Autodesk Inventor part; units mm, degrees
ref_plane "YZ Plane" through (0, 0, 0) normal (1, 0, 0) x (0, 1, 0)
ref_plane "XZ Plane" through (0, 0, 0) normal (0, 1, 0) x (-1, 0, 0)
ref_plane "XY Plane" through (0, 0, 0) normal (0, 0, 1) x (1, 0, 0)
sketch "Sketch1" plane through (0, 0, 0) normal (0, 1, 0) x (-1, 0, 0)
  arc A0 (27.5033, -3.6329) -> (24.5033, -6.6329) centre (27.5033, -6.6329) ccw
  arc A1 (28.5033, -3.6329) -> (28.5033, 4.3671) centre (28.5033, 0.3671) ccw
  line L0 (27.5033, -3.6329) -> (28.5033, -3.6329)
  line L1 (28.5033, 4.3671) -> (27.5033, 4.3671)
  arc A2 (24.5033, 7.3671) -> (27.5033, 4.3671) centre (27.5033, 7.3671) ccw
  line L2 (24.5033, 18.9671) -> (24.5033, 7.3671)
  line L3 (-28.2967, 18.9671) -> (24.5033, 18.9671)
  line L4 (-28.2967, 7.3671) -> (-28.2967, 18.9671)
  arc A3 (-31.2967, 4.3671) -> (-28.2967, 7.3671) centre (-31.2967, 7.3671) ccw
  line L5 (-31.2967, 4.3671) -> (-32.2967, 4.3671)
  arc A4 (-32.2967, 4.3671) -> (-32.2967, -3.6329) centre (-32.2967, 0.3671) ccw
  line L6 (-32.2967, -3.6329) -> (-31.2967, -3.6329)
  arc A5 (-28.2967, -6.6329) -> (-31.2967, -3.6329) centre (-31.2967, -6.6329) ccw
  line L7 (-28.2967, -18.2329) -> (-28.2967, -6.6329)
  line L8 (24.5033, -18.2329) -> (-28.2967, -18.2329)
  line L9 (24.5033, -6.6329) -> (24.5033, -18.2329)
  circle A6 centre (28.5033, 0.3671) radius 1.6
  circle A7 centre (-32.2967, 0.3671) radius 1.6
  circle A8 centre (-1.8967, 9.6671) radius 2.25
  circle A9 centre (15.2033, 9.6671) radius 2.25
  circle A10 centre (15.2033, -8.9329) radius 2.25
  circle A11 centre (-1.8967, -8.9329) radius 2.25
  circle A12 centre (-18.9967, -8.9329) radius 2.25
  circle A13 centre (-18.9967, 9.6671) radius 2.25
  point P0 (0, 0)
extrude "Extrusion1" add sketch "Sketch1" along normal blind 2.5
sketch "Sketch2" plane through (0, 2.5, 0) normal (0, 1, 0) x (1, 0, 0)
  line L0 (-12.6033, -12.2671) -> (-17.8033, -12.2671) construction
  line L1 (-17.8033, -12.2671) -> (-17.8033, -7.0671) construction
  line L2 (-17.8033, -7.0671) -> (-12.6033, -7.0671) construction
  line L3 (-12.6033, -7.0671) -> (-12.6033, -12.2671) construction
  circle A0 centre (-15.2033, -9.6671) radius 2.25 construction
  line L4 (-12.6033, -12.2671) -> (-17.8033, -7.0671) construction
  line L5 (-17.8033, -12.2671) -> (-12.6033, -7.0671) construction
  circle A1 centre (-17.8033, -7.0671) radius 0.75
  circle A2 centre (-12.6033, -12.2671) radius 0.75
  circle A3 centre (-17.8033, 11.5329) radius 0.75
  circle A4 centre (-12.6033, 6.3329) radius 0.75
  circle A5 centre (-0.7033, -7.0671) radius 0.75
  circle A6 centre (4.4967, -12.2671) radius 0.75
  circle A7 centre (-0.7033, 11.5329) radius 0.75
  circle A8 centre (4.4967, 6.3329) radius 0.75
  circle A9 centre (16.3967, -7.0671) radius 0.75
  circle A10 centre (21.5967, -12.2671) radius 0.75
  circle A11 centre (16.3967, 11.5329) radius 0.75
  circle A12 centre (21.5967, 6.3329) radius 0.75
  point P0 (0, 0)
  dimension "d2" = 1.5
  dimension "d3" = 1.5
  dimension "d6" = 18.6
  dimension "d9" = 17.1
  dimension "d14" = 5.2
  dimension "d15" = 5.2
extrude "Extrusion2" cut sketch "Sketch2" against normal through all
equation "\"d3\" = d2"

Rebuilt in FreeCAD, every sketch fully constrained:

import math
import FreeCAD as App
import Part
import Sketcher
Q = App.Units.Quantity

doc = App.newDocument("Part")
params = doc.addObject("Spreadsheet::Sheet", "Params")
for row, (alias, value) in enumerate([
    ("sketch1_radius", "3 mm"),
    ("sketch1_radius2", "4 mm"),
    ("sketch1_diameter", "4.5 mm"),
    ("sketch1_diameter2", "3.2 mm"),
    ("sketch1_width", "1 mm"),
    ("pad1_length", "2.5 mm"),
    ("sketch2_diameter", "1.5 mm"),
], start=1):
    params.set(f"A{row}", alias)
    params.set(f"B{row}", "=" + value)
    params.setAlias(f"B{row}", alias)

body = doc.addObject("PartDesign::Body", "Body")

# Sketch on XZ plane
sketch1 = body.newObject("Sketcher::SketchObject", "Sketch")
sketch1.AttachmentSupport = (doc.getObject("XZ_Plane"), [""])
sketch1.MapMode = "FlatFace"
sketch1.addGeometry([
    Part.ArcOfCircle(Part.Circle(App.Vector(-27.5, -6.6, 0), App.Vector(0, 0, 1), 3), math.radians(0), math.radians(90)),  # 0
    Part.LineSegment(App.Vector(-27.5, -3.6, 0), App.Vector(-28.5, -3.6, 0)),  # 1
    Part.ArcOfCircle(Part.Circle(App.Vector(-28.5, 0.4, 0), App.Vector(0, 0, 1), 4), math.radians(90), math.radians(270)),  # 2
    Part.LineSegment(App.Vector(-28.5, 4.4, 0), App.Vector(-27.5, 4.4, 0)),  # 3
    Part.ArcOfCircle(Part.Circle(App.Vector(-27.5, 7.4, 0), App.Vector(0, 0, 1), 3), math.radians(-90), math.radians(0)),  # 4
    Part.LineSegment(App.Vector(-24.5, 7.4, 0), App.Vector(-24.5, 19, 0)),  # 5
    Part.LineSegment(App.Vector(-24.5, 19, 0), App.Vector(28.3, 19, 0)),  # 6
    Part.LineSegment(App.Vector(28.3, 19, 0), App.Vector(28.3, 7.4, 0)),  # 7
    Part.ArcOfCircle(Part.Circle(App.Vector(31.3, 7.4, 0), App.Vector(0, 0, 1), 3), math.radians(180), math.radians(270)),  # 8
    Part.LineSegment(App.Vector(31.3, 4.4, 0), App.Vector(32.3, 4.4, 0)),  # 9
    Part.ArcOfCircle(Part.Circle(App.Vector(32.3, 0.4, 0), App.Vector(0, 0, 1), 4), math.radians(-90), math.radians(90)),  # 10
    Part.LineSegment(App.Vector(32.3, -3.6, 0), App.Vector(31.3, -3.6, 0)),  # 11
    Part.ArcOfCircle(Part.Circle(App.Vector(31.3, -6.6, 0), App.Vector(0, 0, 1), 3), math.radians(90), math.radians(180)),  # 12
    Part.LineSegment(App.Vector(28.3, -6.6, 0), App.Vector(28.3, -18.2, 0)),  # 13
    Part.LineSegment(App.Vector(28.3, -18.2, 0), App.Vector(-24.5, -18.2, 0)),  # 14
    Part.LineSegment(App.Vector(-24.5, -18.2, 0), App.Vector(-24.5, -6.6, 0)),  # 15
    Part.Circle(App.Vector(19, -8.9, 0), App.Vector(0, 0, 1), 2.2),  # 16
    Part.Circle(App.Vector(1.9, -8.9, 0), App.Vector(0, 0, 1), 2.2),  # 17
    Part.Circle(App.Vector(-15.2, -8.9, 0), App.Vector(0, 0, 1), 2.2),  # 18
    Part.Circle(App.Vector(32.3, 0.4, 0), App.Vector(0, 0, 1), 1.6),  # 19
    Part.Circle(App.Vector(19, 9.7, 0), App.Vector(0, 0, 1), 2.2),  # 20
    Part.Circle(App.Vector(1.9, 9.7, 0), App.Vector(0, 0, 1), 2.2),  # 21
    Part.Circle(App.Vector(-15.2, 9.7, 0), App.Vector(0, 0, 1), 2.2),  # 22
    Part.Circle(App.Vector(-28.5, 0.4, 0), App.Vector(0, 0, 1), 1.6),  # 23
], False)
sketch1.addConstraint([
    Sketcher.Constraint("Tangent", 0, 2, 1, 1),
    Sketcher.Constraint("Tangent", 1, 2, 2, 2),
    Sketcher.Constraint("Tangent", 2, 1, 3, 1),
    Sketcher.Constraint("Tangent", 3, 2, 4, 1),
    Sketcher.Constraint("Tangent", 4, 2, 5, 1),
    Sketcher.Constraint("Coincident", 5, 2, 6, 1),
    Sketcher.Constraint("Coincident", 6, 2, 7, 1),
    Sketcher.Constraint("Tangent", 7, 2, 8, 1),
    Sketcher.Constraint("Tangent", 8, 2, 9, 1),
    Sketcher.Constraint("Tangent", 9, 2, 10, 2),
    Sketcher.Constraint("Tangent", 10, 1, 11, 1),
    Sketcher.Constraint("Tangent", 11, 2, 12, 1),
    Sketcher.Constraint("Tangent", 12, 2, 13, 1),
    Sketcher.Constraint("Coincident", 13, 2, 14, 1),
    Sketcher.Constraint("Coincident", 14, 2, 15, 1),
    Sketcher.Constraint("Tangent", 15, 2, 0, 1),
    Sketcher.Constraint("Horizontal", 1),
    Sketcher.Constraint("Horizontal", 3),
    Sketcher.Constraint("Vertical", 5),
    Sketcher.Constraint("Horizontal", 6),
    Sketcher.Constraint("Vertical", 7),
    Sketcher.Constraint("Horizontal", 9),
    Sketcher.Constraint("Horizontal", 11),
    Sketcher.Constraint("Vertical", 13),
    Sketcher.Constraint("Horizontal", 14),
    Sketcher.Constraint("Vertical", 15),
    Sketcher.Constraint("Coincident", 19, 3, 10, 3),
    Sketcher.Constraint("Coincident", 23, 3, 2, 3),
    Sketcher.Constraint("Equal", 0, 4),
    Sketcher.Constraint("Equal", 4, 8),
    Sketcher.Constraint("Equal", 2, 10),
    Sketcher.Constraint("Equal", 8, 12),
    Sketcher.Constraint("Equal", 16, 17),
    Sketcher.Constraint("Equal", 17, 18),
    Sketcher.Constraint("Equal", 18, 20),
    Sketcher.Constraint("Equal", 20, 21),
    Sketcher.Constraint("Equal", 21, 22),
    Sketcher.Constraint("Equal", 19, 23),
    Sketcher.Constraint("Horizontal", 4, 3, 8, 3),
    Sketcher.Constraint("Horizontal", 16, 3, 17, 3),
    Sketcher.Constraint("Horizontal", 17, 3, 18, 3),
    Sketcher.Constraint("Horizontal", 20, 3, 21, 3),
    Sketcher.Constraint("Horizontal", 21, 3, 22, 3),
    Sketcher.Constraint("Vertical", 0, 3, 4, 3),
    Sketcher.Constraint("Vertical", 8, 3, 12, 3),
    Sketcher.Constraint("Vertical", 16, 3, 20, 3),
    Sketcher.Constraint("Vertical", 17, 3, 21, 3),
    Sketcher.Constraint("Vertical", 18, 3, 22, 3),
    Sketcher.Constraint("Equal", 3, 9),
    Sketcher.Constraint("Equal", 7, 13),
    Sketcher.Constraint("Radius", 0, Q("3 mm")),
    Sketcher.Constraint("Radius", 2, Q("4 mm")),
    Sketcher.Constraint("Diameter", 16, Q("4.5 mm")),
    Sketcher.Constraint("Diameter", 19, Q("3.2 mm")),
    Sketcher.Constraint("DistanceX", 1, 2, 1, 1, Q("1 mm")),
    Sketcher.Constraint("DistanceX", 6, 1, 6, 2, Q("52.8 mm")),
    Sketcher.Constraint("DistanceY", 5, 1, 5, 2, Q("11.6 mm")),
    Sketcher.Constraint("DistanceX", 16, 3, 12, 3, Q("12.3 mm")),
    Sketcher.Constraint("DistanceY", 16, 3, 12, 3, Q("2.3 mm")),
    Sketcher.Constraint("DistanceX", 17, 3, 16, 3, Q("17.1 mm")),
    Sketcher.Constraint("DistanceX", 0, 3, 18, 3, Q("12.3 mm")),
    Sketcher.Constraint("DistanceY", 8, 3, 20, 3, Q("2.3 mm")),
    Sketcher.Constraint("DistanceY", 0, 3, -1, 1, Q("6.633 mm")),
    Sketcher.Constraint("DistanceX", 0, 3, -1, 1, Q("27.5033 mm")),
])
sketch1.setExpression("Constraints[50]", "Params.sketch1_radius")
sketch1.setExpression("Constraints[51]", "Params.sketch1_radius2")
sketch1.setExpression("Constraints[52]", "Params.sketch1_diameter")
sketch1.setExpression("Constraints[53]", "Params.sketch1_diameter2")
sketch1.setExpression("Constraints[54]", "Params.sketch1_width")
pad1 = body.newObject("PartDesign::Pad", "Pad")
pad1.Profile = sketch1
pad1.setExpression("Length", "Params.pad1_length")
pad1.Reversed = True

# Sketch on XZ plane
sketch2 = body.newObject("Sketcher::SketchObject", "Sketch001")
sketch2.AttachmentSupport = (doc.getObject("XZ_Plane"), [""])
sketch2.MapMode = "FlatFace"
sketch2.AttachmentOffset = App.Placement(App.Vector(0, 0, -2.5), App.Rotation())
sketch2.addGeometry([
    Part.Circle(App.Vector(-17.8, 7.1, 0), App.Vector(0, 0, 1), 0.8),  # 0
    Part.Circle(App.Vector(-12.6, 12.3, 0), App.Vector(0, 0, 1), 0.8),  # 1
    Part.Circle(App.Vector(-17.8, -11.5, 0), App.Vector(0, 0, 1), 0.8),  # 2
    Part.Circle(App.Vector(-12.6, -6.3, 0), App.Vector(0, 0, 1), 0.8),  # 3
    Part.Circle(App.Vector(-0.7, 7.1, 0), App.Vector(0, 0, 1), 0.8),  # 4
    Part.Circle(App.Vector(4.5, 12.3, 0), App.Vector(0, 0, 1), 0.8),  # 5
    Part.Circle(App.Vector(-0.7, -11.5, 0), App.Vector(0, 0, 1), 0.8),  # 6
    Part.Circle(App.Vector(4.5, -6.3, 0), App.Vector(0, 0, 1), 0.8),  # 7
    Part.Circle(App.Vector(16.4, 7.1, 0), App.Vector(0, 0, 1), 0.8),  # 8
    Part.Circle(App.Vector(21.6, 12.3, 0), App.Vector(0, 0, 1), 0.8),  # 9
    Part.Circle(App.Vector(16.4, -11.5, 0), App.Vector(0, 0, 1), 0.8),  # 10
    Part.Circle(App.Vector(21.6, -6.3, 0), App.Vector(0, 0, 1), 0.8),  # 11
], False)
sketch2.addConstraint([
    Sketcher.Constraint("Equal", 0, 1),
    Sketcher.Constraint("Equal", 1, 2),
    Sketcher.Constraint("Equal", 2, 3),
    Sketcher.Constraint("Equal", 3, 4),
    Sketcher.Constraint("Equal", 4, 5),
    Sketcher.Constraint("Equal", 5, 6),
    Sketcher.Constraint("Equal", 6, 7),
    Sketcher.Constraint("Equal", 7, 8),
    Sketcher.Constraint("Equal", 8, 9),
    Sketcher.Constraint("Equal", 9, 10),
    Sketcher.Constraint("Equal", 10, 11),
    Sketcher.Constraint("Horizontal", 0, 3, 4, 3),
    Sketcher.Constraint("Horizontal", 1, 3, 5, 3),
    Sketcher.Constraint("Horizontal", 2, 3, 6, 3),
    Sketcher.Constraint("Horizontal", 3, 3, 7, 3),
    Sketcher.Constraint("Horizontal", 4, 3, 8, 3),
    Sketcher.Constraint("Horizontal", 5, 3, 9, 3),
    Sketcher.Constraint("Horizontal", 6, 3, 10, 3),
    Sketcher.Constraint("Horizontal", 7, 3, 11, 3),
    Sketcher.Constraint("Vertical", 0, 3, 2, 3),
    Sketcher.Constraint("Vertical", 1, 3, 3, 3),
    Sketcher.Constraint("Vertical", 4, 3, 6, 3),
    Sketcher.Constraint("Vertical", 5, 3, 7, 3),
    Sketcher.Constraint("Vertical", 8, 3, 10, 3),
    Sketcher.Constraint("Vertical", 9, 3, 11, 3),
    Sketcher.Constraint("Diameter", 0, Q("1.5 mm")),
    Sketcher.Constraint("DistanceX", 0, 3, 1, 3, Q("5.2 mm")),
    Sketcher.Constraint("DistanceY", 0, 3, 1, 3, Q("5.2 mm")),
    Sketcher.Constraint("DistanceY", 2, 3, 0, 3, Q("18.6 mm")),
    Sketcher.Constraint("DistanceY", 2, 3, 3, 3, Q("5.2 mm")),
    Sketcher.Constraint("DistanceX", 0, 3, 4, 3, Q("17.1 mm")),
    Sketcher.Constraint("DistanceX", 4, 3, 5, 3, Q("5.2 mm")),
    Sketcher.Constraint("DistanceX", 4, 3, 8, 3, Q("17.1 mm")),
    Sketcher.Constraint("DistanceX", 8, 3, 9, 3, Q("5.2 mm")),
    Sketcher.Constraint("DistanceY", -1, 1, 0, 3, Q("7.067 mm")),
    Sketcher.Constraint("DistanceX", 0, 3, -1, 1, Q("17.8033 mm")),
])
sketch2.setExpression("Constraints[25]", "Params.sketch2_diameter")
pocket1 = body.newObject("PartDesign::Pocket", "Pocket")
pocket1.Profile = sketch2
pocket1.Type = "ThroughAll"
pocket1.Reversed = True

doc.recompute()
